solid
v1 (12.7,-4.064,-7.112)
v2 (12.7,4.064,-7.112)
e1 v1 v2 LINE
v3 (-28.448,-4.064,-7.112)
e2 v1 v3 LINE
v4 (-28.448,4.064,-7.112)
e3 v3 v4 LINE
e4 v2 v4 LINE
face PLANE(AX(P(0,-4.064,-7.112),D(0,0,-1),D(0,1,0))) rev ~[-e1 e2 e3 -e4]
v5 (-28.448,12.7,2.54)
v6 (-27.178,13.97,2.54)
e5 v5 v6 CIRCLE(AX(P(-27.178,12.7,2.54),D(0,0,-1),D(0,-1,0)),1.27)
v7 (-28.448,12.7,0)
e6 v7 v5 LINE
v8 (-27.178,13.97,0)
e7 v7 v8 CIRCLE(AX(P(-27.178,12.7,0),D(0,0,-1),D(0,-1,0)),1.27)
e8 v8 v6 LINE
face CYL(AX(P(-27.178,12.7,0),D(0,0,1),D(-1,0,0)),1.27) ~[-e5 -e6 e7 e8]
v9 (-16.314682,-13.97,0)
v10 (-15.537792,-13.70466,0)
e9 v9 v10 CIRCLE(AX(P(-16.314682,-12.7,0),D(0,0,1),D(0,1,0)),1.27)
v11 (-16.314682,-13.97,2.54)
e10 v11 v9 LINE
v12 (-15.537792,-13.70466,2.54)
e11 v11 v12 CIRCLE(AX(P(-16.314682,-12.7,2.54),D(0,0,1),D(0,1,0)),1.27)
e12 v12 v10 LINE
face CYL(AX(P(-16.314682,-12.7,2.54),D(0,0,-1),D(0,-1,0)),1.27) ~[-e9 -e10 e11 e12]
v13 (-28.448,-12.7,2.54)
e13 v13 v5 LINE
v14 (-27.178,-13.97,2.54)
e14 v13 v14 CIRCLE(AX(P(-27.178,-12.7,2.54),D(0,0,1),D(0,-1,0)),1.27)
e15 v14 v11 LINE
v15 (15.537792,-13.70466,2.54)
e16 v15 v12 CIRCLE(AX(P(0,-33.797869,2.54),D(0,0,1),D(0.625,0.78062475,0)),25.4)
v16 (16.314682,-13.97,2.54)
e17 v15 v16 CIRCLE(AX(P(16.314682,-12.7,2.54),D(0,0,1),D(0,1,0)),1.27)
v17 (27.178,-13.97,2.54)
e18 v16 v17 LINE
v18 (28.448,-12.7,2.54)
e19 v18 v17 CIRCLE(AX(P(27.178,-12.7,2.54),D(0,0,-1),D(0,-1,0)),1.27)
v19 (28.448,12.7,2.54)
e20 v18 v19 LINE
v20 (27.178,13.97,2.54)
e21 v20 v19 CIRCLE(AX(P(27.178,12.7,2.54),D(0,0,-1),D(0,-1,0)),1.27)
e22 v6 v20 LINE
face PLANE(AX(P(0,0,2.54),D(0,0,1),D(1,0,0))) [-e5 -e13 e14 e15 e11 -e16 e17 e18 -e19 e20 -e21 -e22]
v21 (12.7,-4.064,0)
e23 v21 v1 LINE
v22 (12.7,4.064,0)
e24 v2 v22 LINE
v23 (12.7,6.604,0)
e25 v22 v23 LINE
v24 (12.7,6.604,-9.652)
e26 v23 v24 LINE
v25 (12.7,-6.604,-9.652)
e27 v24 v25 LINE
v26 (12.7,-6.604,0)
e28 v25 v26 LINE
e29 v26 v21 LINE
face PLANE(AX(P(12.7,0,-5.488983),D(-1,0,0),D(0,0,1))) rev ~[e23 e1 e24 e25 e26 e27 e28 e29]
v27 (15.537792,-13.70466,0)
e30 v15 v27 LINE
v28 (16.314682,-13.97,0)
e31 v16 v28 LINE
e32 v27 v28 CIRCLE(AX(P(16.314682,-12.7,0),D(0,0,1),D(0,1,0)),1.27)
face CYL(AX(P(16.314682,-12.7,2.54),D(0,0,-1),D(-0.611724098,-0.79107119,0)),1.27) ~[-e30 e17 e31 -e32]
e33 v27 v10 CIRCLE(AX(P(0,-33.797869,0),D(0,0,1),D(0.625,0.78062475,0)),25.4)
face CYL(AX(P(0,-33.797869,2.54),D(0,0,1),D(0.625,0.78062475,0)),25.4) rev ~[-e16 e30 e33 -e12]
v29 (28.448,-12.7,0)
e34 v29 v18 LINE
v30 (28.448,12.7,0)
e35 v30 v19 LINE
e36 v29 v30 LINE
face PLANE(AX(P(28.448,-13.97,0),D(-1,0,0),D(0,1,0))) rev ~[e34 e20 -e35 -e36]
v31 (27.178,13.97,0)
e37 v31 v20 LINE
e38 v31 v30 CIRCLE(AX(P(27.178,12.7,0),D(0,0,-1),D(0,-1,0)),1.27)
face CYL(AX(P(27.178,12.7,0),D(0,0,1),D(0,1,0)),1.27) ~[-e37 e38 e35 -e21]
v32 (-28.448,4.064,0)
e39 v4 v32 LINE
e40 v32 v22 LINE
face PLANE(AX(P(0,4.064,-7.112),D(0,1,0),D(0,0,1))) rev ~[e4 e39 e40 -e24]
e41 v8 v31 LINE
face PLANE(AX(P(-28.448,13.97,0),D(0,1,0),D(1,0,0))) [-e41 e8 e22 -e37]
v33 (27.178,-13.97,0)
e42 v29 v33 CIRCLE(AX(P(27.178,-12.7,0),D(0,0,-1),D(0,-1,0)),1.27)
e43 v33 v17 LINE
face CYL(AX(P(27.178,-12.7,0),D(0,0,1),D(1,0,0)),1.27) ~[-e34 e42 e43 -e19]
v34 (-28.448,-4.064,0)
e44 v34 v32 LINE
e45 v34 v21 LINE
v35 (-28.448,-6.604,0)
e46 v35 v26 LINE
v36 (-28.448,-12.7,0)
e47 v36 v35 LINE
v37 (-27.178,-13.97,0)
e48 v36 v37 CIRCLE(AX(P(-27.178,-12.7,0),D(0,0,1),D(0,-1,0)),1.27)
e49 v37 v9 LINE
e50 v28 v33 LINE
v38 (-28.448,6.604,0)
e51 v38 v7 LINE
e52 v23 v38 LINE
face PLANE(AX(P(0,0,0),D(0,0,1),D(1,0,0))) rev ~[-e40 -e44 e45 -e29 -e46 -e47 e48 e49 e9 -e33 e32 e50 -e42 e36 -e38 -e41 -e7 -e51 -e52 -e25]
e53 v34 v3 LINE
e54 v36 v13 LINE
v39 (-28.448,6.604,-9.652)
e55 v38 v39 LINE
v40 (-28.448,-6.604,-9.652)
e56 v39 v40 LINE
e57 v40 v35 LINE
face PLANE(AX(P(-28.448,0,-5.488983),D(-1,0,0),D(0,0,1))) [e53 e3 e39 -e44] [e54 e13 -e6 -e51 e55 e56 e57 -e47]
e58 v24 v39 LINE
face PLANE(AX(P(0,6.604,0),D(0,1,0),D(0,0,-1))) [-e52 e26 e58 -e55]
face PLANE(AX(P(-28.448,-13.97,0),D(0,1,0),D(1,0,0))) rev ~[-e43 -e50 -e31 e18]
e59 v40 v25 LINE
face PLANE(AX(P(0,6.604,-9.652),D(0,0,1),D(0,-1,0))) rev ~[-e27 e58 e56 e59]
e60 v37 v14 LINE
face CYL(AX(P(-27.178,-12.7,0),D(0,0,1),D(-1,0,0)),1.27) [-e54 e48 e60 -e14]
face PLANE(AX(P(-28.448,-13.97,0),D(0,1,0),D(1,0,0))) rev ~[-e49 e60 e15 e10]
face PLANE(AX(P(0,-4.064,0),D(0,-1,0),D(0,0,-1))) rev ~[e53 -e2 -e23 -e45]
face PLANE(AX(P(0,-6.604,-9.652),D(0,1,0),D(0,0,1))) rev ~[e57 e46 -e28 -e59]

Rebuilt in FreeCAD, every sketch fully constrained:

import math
import FreeCAD as App
import Part
import Sketcher

V = App.Vector
Q = App.Units.Quantity


def edges_at(feature, points):
    """Names of the edges that pass closest to the given points."""
    edges = feature.Shape.Edges
    near = lambda p: min(range(len(edges)), key=lambda i: edges[i].distToShape(Part.Vertex(*p))[0])
    return sorted({f"Edge{near(p) + 1}" for p in points})

doc = App.newDocument("Part")
body = doc.addObject("PartDesign::Body", "Body")

# Sketch on XY plane
sketch1 = doc.addObject("Sketcher::SketchObject", "Sketch")
body.addObject(sketch1)
sketch1.AttachmentSupport = (doc.XY_Plane, [""])
sketch1.MapMode = "FlatFace"
sketch1.addGeometry([
    Part.LineSegment(V(-28, 14, 0), V(-28, -14, 0)),
    Part.LineSegment(V(-28, -14, 0), V(28, -14, 0)),
    Part.LineSegment(V(28, -14, 0), V(28, 14, 0)),
    Part.LineSegment(V(28, 14, 0), V(-28, 14, 0)),
], False)
sketch1.addConstraint([
    Sketcher.Constraint("Coincident", 0, 2, 1, 1),
    Sketcher.Constraint("Coincident", 1, 2, 2, 1),
    Sketcher.Constraint("Coincident", 2, 2, 3, 1),
    Sketcher.Constraint("Coincident", 3, 2, 0, 1),
    Sketcher.Constraint("Vertical", 0),
    Sketcher.Constraint("Horizontal", 1),
    Sketcher.Constraint("Vertical", 2),
    Sketcher.Constraint("Horizontal", 3),
    Sketcher.Constraint("Symmetric", 0, 2, 2, 2, -1, 1),
    Sketcher.Constraint("DistanceY", 0, 2, 0, 1, Q("1.1 in")),
    Sketcher.Constraint("DistanceX", 1, 1, 1, 2, Q("2.24 in")),
])
pad1 = doc.addObject("PartDesign::Pad", "Pad")
body.addObject(pad1)
pad1.Profile = sketch1
pad1.Length = Q("0.1 in")

# Sketch on XY plane
sketch2 = doc.addObject("Sketcher::SketchObject", "Sketch001")
body.addObject(sketch2)
sketch2.AttachmentSupport = (doc.XY_Plane, [""])
sketch2.MapMode = "FlatFace"
sketch2.AttachmentOffset = App.Placement(V(0, 0, 0.1 * 25.4), App.Rotation())
sketch2.addGeometry([
    Part.LineSegment(V(-16, -14, 0), V(16, -14, 0)),
    Part.ArcOfCircle(Part.Circle(V(0, -34, 0), V(0, 0, 1), 25), math.radians(51), math.radians(129)),
], False)
sketch2.addConstraint([
    Sketcher.Constraint("Coincident", 0, 1, 1, 2),
    Sketcher.Constraint("Coincident", 1, 1, 0, 2),
    Sketcher.Constraint("Horizontal", 0),
    Sketcher.Constraint("PointOnObject", 1, 3, -2),
    Sketcher.Constraint("Radius", 1, Q("1 in")),
    Sketcher.Constraint("DistanceX", 0, 1, 0, 2, Q("1.25 in")),
    Sketcher.Constraint("DistanceY", 0, 1, -1, 1, Q("0.55 in")),
])
pocket1 = doc.addObject("PartDesign::Pocket", "Pocket")
body.addObject(pocket1)
pocket1.Profile = sketch2
pocket1.Type = "ThroughAll"
doc.recompute()

fillet = doc.addObject("PartDesign::Fillet", "Fillet")
body.addObject(fillet)
fillet.Base = (pocket1, edges_at(pocket1, [
    (-15.875, -13.97, 1.27),
    (15.875, -13.97, 1.27),
    (28.448, -13.97, 1.27),
    (-28.448, -13.97, 1.27),
    (-28.448, 13.97, 1.27),
    (28.448, 13.97, 1.27),
]))
fillet.Radius = Q("0.05 in")

# Sketch on YZ plane
sketch3 = doc.addObject("Sketcher::SketchObject", "Sketch002")
body.addObject(sketch3)
sketch3.AttachmentSupport = (doc.YZ_Plane, [""])
sketch3.MapMode = "FlatFace"
sketch3.addGeometry([
    Part.LineSegment(V(-4.1, -7.1, 0), V(-4.1, 0, 0)),  # 0
    Part.LineSegment(V(-4.1, 0, 0), V(-6.6, 0, 0)),  # 1
    Part.LineSegment(V(-6.6, 0, 0), V(-6.6, -9.7, 0)),  # 2
    Part.LineSegment(V(-6.6, -9.7, 0), V(6.6, -9.7, 0)),  # 3
    Part.LineSegment(V(6.6, -9.7, 0), V(6.6, 0, 0)),  # 4
    Part.LineSegment(V(6.6, 0, 0), V(4.1, 0, 0)),  # 5
    Part.LineSegment(V(4.1, 0, 0), V(4.1, -7.1, 0)),  # 6
    Part.LineSegment(V(4.1, -7.1, 0), V(-4.1, -7.1, 0)),  # 7
], False)
sketch3.addConstraint([
    Sketcher.Constraint("Coincident", 0, 2, 1, 1),
    Sketcher.Constraint("Coincident", 1, 2, 2, 1),
    Sketcher.Constraint("Coincident", 2, 2, 3, 1),
    Sketcher.Constraint("Coincident", 3, 2, 4, 1),
    Sketcher.Constraint("Coincident", 4, 2, 5, 1),
    Sketcher.Constraint("Coincident", 5, 2, 6, 1),
    Sketcher.Constraint("Coincident", 6, 2, 7, 1),
    Sketcher.Constraint("Coincident", 7, 2, 0, 1),
    Sketcher.Constraint("Vertical", 0),
    Sketcher.Constraint("Horizontal", 1),
    Sketcher.Constraint("Vertical", 2),
    Sketcher.Constraint("Horizontal", 3),
    Sketcher.Constraint("Vertical", 4),
    Sketcher.Constraint("Horizontal", 5),
    Sketcher.Constraint("Vertical", 6),
    Sketcher.Constraint("Horizontal", 7),
    Sketcher.Constraint("Symmetric", 1, 2, 4, 2, -1, 1),
    Sketcher.Constraint("Symmetric", 0, 2, 5, 2, -2),
    Sketcher.Constraint("DistanceX", 1, 2, 1, 1, Q("0.1 in")),
    Sketcher.Constraint("DistanceX", 3, 1, 3, 2, Q("0.52 in")),
    Sketcher.Constraint("DistanceY", 0, 1, 0, 2, Q("0.28 in")),
    Sketcher.Constraint("DistanceY", 2, 2, 2, 1, Q("0.38 in")),
])
pad2 = doc.addObject("PartDesign::Pad", "Pad001")
body.addObject(pad2)
pad2.Profile = sketch3
pad2.Type = "TwoLengths"
pad2.Length = Q("0.5 in")
pad2.Length2 = Q("1.12 in")

doc.recompute()
